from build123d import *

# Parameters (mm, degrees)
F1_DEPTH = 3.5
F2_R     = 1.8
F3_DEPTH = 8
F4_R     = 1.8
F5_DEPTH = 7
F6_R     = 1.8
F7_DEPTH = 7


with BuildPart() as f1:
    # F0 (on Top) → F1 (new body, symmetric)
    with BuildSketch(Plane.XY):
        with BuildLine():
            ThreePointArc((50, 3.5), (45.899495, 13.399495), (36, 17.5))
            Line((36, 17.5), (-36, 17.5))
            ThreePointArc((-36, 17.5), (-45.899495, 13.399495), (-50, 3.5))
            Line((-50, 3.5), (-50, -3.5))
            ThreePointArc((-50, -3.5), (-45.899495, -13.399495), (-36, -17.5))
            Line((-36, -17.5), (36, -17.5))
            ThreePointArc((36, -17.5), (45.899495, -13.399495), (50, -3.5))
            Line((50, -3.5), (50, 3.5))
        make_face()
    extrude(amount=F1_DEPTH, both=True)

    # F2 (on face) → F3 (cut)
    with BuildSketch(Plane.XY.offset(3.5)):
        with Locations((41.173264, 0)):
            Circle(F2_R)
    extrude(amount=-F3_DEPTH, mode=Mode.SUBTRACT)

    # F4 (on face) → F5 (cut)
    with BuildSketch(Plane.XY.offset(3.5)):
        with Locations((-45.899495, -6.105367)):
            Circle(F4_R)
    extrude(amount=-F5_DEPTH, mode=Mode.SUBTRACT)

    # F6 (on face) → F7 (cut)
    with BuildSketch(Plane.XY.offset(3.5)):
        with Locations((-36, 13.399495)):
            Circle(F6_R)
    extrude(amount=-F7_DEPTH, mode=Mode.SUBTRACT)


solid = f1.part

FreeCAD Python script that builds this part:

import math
import FreeCAD as App
import Part
import Sketcher

V = App.Vector
Q = App.Units.Quantity

doc = App.newDocument("Part")
body = doc.addObject("PartDesign::Body", "Body")

sketch1 = body.newObject("Sketcher::SketchObject", "Sketch")
sketch1.AttachmentSupport = (doc.getObject("XY_Plane"), [""])
sketch1.MapMode = "FlatFace"
sketch1.addGeometry(Part.ArcOfCircle(Part.Circle(V(36, 3.5, 0), V(0, 0, 1), 14), math.radians(-0.000001), math.radians(90.000001)), False)
sketch1.addGeometry(Part.LineSegment(V(36, 17.5, 0), V(-36, 17.5, 0)), False)
sketch1.addGeometry(Part.ArcOfCircle(Part.Circle(V(-36, 3.5, 0), V(0, 0, 1), 14), math.radians(89.999999), math.radians(180.000001)), False)
sketch1.addGeometry(Part.LineSegment(V(-50, 3.5, 0), V(-50, -3.5, 0)), False)
sketch1.addGeometry(Part.ArcOfCircle(Part.Circle(V(-36, -3.5, 0), V(0, 0, 1), 14), math.radians(179.999999), math.radians(270.000001)), False)
sketch1.addGeometry(Part.LineSegment(V(-36, -17.5, 0), V(36, -17.5, 0)), False)
sketch1.addGeometry(Part.ArcOfCircle(Part.Circle(V(36, -3.5, 0), V(0, 0, 1), 14), math.radians(-90.000001), math.radians(0.000001)), False)
sketch1.addGeometry(Part.LineSegment(V(50, -3.5, 0), V(50, 3.5, 0)), False)
sketch1.addConstraint(Sketcher.Constraint("Tangent", 0, 2, 1, 1))
sketch1.addConstraint(Sketcher.Constraint("Tangent", 1, 2, 2, 1))
sketch1.addConstraint(Sketcher.Constraint("Tangent", 2, 2, 3, 1))
sketch1.addConstraint(Sketcher.Constraint("Tangent", 3, 2, 4, 1))
sketch1.addConstraint(Sketcher.Constraint("Tangent", 4, 2, 5, 1))
sketch1.addConstraint(Sketcher.Constraint("Tangent", 5, 2, 6, 1))
sketch1.addConstraint(Sketcher.Constraint("Tangent", 6, 2, 7, 1))
sketch1.addConstraint(Sketcher.Constraint("Tangent", 7, 2, 0, 1))
sketch1.addConstraint(Sketcher.Constraint("Horizontal", 1))
sketch1.addConstraint(Sketcher.Constraint("Vertical", 3))
sketch1.addConstraint(Sketcher.Constraint("Horizontal", 5))
sketch1.addConstraint(Sketcher.Constraint("Vertical", 7))
sketch1.addConstraint(Sketcher.Constraint("Equal", 0, 2))
sketch1.addConstraint(Sketcher.Constraint("Equal", 2, 4))
sketch1.addConstraint(Sketcher.Constraint("Equal", 4, 6))
sketch1.addConstraint(Sketcher.Constraint("Symmetric", 0, 3, 4, 3, -1, 1))
sketch1.addConstraint(Sketcher.Constraint("Radius", 0, Q("14 mm")))
sketch1.addConstraint(Sketcher.Constraint("DistanceX", 1, 2, 1, 1, Q("72 mm")))
sketch1.addConstraint(Sketcher.Constraint("DistanceY", 3, 2, 3, 1, Q("7 mm")))
pad1 = body.newObject("PartDesign::Pad", "Pad")
pad1.Profile = sketch1
pad1.Length = 7
pad1.Midplane = True

sketch2 = body.newObject("Sketcher::SketchObject", "Sketch001")
sketch2.AttachmentSupport = (doc.getObject("XY_Plane"), [""])
sketch2.MapMode = "FlatFace"
sketch2.AttachmentOffset = App.Placement(V(0, 0, 3.5), App.Rotation())
sketch2.addGeometry(Part.Circle(V(41.173264, 0, 0), V(0, 0, 1), 1.8), False)
sketch2.addConstraint(Sketcher.Constraint("PointOnObject", 0, 3, -1))
sketch2.addConstraint(Sketcher.Constraint("Diameter", 0, Q("3.6 mm")))
sketch2.addConstraint(Sketcher.Constraint("DistanceX", -1, 1, 0, 3, Q("41.173264 mm")))
pocket1 = body.newObject("PartDesign::Pocket", "Pocket")
pocket1.Profile = sketch2
pocket1.Length = 8

sketch3 = body.newObject("Sketcher::SketchObject", "Sketch002")
sketch3.AttachmentSupport = (doc.getObject("XY_Plane"), [""])
sketch3.MapMode = "FlatFace"
sketch3.AttachmentOffset = App.Placement(V(0, 0, 3.5), App.Rotation())
sketch3.addGeometry(Part.Circle(V(-45.899495, -6.105367, 0), V(0, 0, 1), 1.8), False)
sketch3.addConstraint(Sketcher.Constraint("Diameter", 0, Q("3.6 mm")))
sketch3.addConstraint(Sketcher.Constraint("DistanceX", 0, 3, -1, 1, Q("45.899495 mm")))
sketch3.addConstraint(Sketcher.Constraint("DistanceY", 0, 3, -1, 1, Q("6.105367 mm")))
pocket2 = body.newObject("PartDesign::Pocket", "Pocket001")
pocket2.Profile = sketch3
pocket2.Length = 7

sketch4 = body.newObject("Sketcher::SketchObject", "Sketch003")
sketch4.AttachmentSupport = (doc.getObject("XY_Plane"), [""])
sketch4.MapMode = "FlatFace"
sketch4.AttachmentOffset = App.Placement(V(0, 0, 3.5), App.Rotation())
sketch4.addGeometry(Part.Circle(V(-36, 13.399495, 0), V(0, 0, 1), 1.8), False)
sketch4.addConstraint(Sketcher.Constraint("Diameter", 0, Q("3.6 mm")))
sketch4.addConstraint(Sketcher.Constraint("DistanceX", 0, 3, -1, 1, Q("36 mm")))
sketch4.addConstraint(Sketcher.Constraint("DistanceY", -1, 1, 0, 3, Q("13.399495 mm")))
pocket3 = body.newObject("PartDesign::Pocket", "Pocket002")
pocket3.Profile = sketch4
pocket3.Length = 7

doc.recompute()
